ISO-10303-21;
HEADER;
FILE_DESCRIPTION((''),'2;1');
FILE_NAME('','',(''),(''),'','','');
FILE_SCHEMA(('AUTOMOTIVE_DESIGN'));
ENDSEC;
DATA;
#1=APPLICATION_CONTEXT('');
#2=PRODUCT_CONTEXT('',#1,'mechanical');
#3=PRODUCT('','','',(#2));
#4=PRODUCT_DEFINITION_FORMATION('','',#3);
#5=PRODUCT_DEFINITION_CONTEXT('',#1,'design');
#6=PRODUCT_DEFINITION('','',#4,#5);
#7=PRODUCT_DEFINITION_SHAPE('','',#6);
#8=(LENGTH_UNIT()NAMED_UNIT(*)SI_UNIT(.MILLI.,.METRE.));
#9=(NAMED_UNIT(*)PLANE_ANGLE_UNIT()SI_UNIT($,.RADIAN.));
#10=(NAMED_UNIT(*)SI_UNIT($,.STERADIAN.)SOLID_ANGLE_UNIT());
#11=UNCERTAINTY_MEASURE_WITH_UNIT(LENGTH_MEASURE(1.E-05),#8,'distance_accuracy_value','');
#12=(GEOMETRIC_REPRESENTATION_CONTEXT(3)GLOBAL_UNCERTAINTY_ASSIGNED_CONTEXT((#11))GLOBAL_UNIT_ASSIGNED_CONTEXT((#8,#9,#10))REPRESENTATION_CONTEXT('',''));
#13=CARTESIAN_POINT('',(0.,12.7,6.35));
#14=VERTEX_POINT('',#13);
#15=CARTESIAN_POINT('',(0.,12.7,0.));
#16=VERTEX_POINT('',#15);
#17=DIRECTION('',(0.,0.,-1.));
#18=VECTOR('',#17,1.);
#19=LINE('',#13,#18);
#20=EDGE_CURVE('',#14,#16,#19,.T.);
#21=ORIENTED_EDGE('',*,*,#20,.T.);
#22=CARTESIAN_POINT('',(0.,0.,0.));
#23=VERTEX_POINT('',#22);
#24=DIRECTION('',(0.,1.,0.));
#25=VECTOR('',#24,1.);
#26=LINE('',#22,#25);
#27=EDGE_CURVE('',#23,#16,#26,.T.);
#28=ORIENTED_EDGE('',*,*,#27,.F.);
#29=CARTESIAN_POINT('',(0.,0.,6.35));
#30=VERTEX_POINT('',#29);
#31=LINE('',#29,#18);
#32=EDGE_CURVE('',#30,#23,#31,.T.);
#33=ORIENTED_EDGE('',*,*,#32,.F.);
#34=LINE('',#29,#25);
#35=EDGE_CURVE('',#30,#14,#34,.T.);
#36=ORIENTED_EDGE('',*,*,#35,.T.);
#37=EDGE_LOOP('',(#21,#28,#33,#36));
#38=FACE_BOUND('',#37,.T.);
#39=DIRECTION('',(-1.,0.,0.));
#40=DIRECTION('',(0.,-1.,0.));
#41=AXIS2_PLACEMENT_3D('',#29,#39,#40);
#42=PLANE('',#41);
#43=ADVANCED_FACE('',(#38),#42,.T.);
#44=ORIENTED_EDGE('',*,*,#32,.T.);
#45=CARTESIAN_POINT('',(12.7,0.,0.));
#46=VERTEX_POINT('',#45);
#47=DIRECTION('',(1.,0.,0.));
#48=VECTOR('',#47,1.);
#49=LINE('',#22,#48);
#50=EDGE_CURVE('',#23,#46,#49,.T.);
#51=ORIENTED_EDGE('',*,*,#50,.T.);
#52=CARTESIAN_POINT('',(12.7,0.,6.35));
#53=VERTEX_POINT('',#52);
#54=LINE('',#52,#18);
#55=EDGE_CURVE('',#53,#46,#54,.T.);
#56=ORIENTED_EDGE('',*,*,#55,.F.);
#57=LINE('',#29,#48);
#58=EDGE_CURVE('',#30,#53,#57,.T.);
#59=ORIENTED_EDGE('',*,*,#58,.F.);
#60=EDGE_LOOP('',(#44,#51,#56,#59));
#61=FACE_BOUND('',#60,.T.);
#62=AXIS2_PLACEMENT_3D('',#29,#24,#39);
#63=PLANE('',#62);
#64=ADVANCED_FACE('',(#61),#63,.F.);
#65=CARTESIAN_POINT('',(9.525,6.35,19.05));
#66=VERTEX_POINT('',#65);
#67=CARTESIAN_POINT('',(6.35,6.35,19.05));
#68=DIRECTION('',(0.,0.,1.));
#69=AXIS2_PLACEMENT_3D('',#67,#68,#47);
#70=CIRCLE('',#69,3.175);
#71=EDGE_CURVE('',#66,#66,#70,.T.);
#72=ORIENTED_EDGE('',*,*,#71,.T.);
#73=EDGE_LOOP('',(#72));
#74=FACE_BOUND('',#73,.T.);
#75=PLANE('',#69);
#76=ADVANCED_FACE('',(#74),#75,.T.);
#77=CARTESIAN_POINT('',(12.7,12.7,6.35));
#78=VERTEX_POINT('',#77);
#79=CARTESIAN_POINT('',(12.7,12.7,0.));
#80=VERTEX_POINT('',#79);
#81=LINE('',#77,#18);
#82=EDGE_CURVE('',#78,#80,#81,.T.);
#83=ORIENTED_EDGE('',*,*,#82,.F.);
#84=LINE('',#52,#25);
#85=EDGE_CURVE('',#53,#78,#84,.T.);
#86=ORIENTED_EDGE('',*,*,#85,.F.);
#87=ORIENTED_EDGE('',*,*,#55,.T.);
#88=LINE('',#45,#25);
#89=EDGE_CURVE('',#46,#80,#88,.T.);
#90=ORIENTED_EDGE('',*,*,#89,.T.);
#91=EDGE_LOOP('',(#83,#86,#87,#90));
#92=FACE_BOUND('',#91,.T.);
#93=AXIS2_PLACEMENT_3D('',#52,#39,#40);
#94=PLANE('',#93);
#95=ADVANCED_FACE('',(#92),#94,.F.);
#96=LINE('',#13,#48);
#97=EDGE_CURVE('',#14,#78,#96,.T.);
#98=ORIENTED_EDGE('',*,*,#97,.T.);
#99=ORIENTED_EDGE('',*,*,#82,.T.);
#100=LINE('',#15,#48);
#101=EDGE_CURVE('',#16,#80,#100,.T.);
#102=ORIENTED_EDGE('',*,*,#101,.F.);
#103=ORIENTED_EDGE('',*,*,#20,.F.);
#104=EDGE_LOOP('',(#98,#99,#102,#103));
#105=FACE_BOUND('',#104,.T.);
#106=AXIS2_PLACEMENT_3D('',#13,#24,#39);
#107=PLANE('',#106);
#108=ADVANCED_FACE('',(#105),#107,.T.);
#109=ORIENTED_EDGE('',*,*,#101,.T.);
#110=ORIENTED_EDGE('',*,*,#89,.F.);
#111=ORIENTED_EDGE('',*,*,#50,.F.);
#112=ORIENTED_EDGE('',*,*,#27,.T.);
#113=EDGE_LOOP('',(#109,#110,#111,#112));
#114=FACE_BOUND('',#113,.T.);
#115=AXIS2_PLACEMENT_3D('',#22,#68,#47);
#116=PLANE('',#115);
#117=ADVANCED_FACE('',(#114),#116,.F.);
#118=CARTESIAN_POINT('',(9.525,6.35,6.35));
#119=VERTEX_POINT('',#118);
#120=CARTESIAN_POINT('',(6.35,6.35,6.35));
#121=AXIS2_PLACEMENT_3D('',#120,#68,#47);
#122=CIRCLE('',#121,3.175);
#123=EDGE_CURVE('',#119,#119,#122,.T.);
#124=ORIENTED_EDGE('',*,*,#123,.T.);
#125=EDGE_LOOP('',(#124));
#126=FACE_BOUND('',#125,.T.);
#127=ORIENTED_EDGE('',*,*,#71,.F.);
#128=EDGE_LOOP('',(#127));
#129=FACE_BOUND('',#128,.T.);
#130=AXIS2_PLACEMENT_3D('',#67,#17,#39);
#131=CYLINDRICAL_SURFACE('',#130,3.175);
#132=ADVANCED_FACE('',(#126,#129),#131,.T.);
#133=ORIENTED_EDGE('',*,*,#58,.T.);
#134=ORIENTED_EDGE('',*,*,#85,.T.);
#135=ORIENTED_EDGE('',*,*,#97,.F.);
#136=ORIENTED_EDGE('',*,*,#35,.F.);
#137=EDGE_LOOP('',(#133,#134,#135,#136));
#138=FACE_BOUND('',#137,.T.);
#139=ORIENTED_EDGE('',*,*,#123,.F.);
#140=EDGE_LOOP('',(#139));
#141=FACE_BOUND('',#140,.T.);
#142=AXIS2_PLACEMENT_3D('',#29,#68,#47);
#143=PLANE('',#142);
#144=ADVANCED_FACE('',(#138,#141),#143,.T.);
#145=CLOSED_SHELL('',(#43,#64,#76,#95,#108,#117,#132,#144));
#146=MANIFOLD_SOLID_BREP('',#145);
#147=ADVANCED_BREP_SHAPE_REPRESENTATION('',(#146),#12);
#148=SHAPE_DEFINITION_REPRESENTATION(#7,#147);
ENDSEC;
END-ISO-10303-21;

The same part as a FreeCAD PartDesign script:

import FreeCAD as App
import Part
import Sketcher
Q = App.Units.Quantity

doc = App.newDocument("Part")
params = doc.addObject("Spreadsheet::Sheet", "Params")
for row, (alias, value) in enumerate([
    ("sketch1_width", "0.5 in"),
    ("pad1_length", "0.25 in"),
    ("sketch2_diameter", "0.25 in"),
    ("pad2_length", "0.5 in"),
], start=1):
    params.set(f"A{row}", alias)
    params.set(f"B{row}", "=" + value)
    params.setAlias(f"B{row}", alias)

body = doc.addObject("PartDesign::Body", "Body")

# Sketch on XY plane
sketch1 = body.newObject("Sketcher::SketchObject", "Sketch")
sketch1.AttachmentSupport = (doc.getObject("XY_Plane"), [""])
sketch1.MapMode = "FlatFace"
sketch1.addGeometry(Part.LineSegment(App.Vector(0, 12.7, 0), App.Vector(0, 0, 0)), False)
sketch1.addGeometry(Part.LineSegment(App.Vector(0, 0, 0), App.Vector(12.7, 0, 0)), False)
sketch1.addGeometry(Part.LineSegment(App.Vector(12.7, 0, 0), App.Vector(12.7, 12.7, 0)), False)
sketch1.addGeometry(Part.LineSegment(App.Vector(12.7, 12.7, 0), App.Vector(0, 12.7, 0)), False)
sketch1.addConstraint(Sketcher.Constraint("Coincident", 0, 2, 1, 1))
sketch1.addConstraint(Sketcher.Constraint("Coincident", 1, 2, 2, 1))
sketch1.addConstraint(Sketcher.Constraint("Coincident", 2, 2, 3, 1))
sketch1.addConstraint(Sketcher.Constraint("Coincident", 3, 2, 0, 1))
sketch1.addConstraint(Sketcher.Constraint("Vertical", 0))
sketch1.addConstraint(Sketcher.Constraint("Horizontal", 1))
sketch1.addConstraint(Sketcher.Constraint("Vertical", 2))
sketch1.addConstraint(Sketcher.Constraint("Horizontal", 3))
sketch1.addConstraint(Sketcher.Constraint("Coincident", 0, 2, -1, 1))
sketch1.addConstraint(Sketcher.Constraint("Equal", 3, 0))
sketch1.addConstraint(Sketcher.Constraint("DistanceX", 1, 1, 1, 2, Q("0.5 in")))
sketch1.setExpression("Constraints[10]", "Params.sketch1_width")
pad1 = body.newObject("PartDesign::Pad", "Pad")
pad1.Profile = sketch1
pad1.setExpression("Length", "Params.pad1_length")

# Sketch on XY plane
sketch2 = body.newObject("Sketcher::SketchObject", "Sketch001")
sketch2.AttachmentSupport = (doc.getObject("XY_Plane"), [""])
sketch2.MapMode = "FlatFace"
sketch2.AttachmentOffset = App.Placement(App.Vector(0, 0, 0.25 * 25.4), App.Rotation())
sketch2.addGeometry(Part.Circle(App.Vector(6.35, 6.35, 0), App.Vector(0, 0, 1), 3.175), False)
sketch2.addConstraint(Sketcher.Constraint("Diameter", 0, Q("0.25 in")))
sketch2.addConstraint(Sketcher.Constraint("DistanceX", -1, 1, 0, 3, Q("0.25 in")))
sketch2.addConstraint(Sketcher.Constraint("DistanceY", -1, 1, 0, 3, Q("0.25 in")))
sketch2.setExpression("Constraints[0]", "Params.sketch2_diameter")
pad2 = body.newObject("PartDesign::Pad", "Pad001")
pad2.Profile = sketch2
pad2.setExpression("Length", "Params.pad2_length")

doc.recompute()
